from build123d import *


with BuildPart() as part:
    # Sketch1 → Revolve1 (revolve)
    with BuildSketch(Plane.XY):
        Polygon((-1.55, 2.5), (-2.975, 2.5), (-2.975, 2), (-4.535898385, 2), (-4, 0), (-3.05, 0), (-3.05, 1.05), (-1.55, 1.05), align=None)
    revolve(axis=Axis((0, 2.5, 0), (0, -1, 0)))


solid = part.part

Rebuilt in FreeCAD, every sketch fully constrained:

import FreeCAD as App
import Part
import Sketcher
Q = App.Units.Quantity

doc = App.newDocument("Part")
body = doc.addObject("PartDesign::Body", "Body")

sketch1 = body.newObject("Sketcher::SketchObject", "Sketch")
sketch1.AttachmentSupport = (doc.getObject("XY_Plane"), [""])
sketch1.MapMode = "FlatFace"
sketch1.addGeometry([
    Part.LineSegment(App.Vector(-1.55, 2.5, 0), App.Vector(-2.975, 2.5, 0)),
    Part.LineSegment(App.Vector(-2.975, 2.5, 0), App.Vector(-2.975, 2, 0)),
    Part.LineSegment(App.Vector(-2.975, 2, 0), App.Vector(-4.535898, 2, 0)),
    Part.LineSegment(App.Vector(-4.535898, 2, 0), App.Vector(-4, 0, 0)),
    Part.LineSegment(App.Vector(-4, 0, 0), App.Vector(-3.05, 0, 0)),
    Part.LineSegment(App.Vector(-3.05, 0, 0), App.Vector(-3.05, 1.05, 0)),
    Part.LineSegment(App.Vector(-3.05, 1.05, 0), App.Vector(-1.55, 1.05, 0)),
    Part.LineSegment(App.Vector(-1.55, 1.05, 0), App.Vector(-1.55, 2.5, 0)),
], False)
sketch1.addConstraint([
    Sketcher.Constraint("Coincident", 0, 2, 1, 1),
    Sketcher.Constraint("Coincident", 1, 2, 2, 1),
    Sketcher.Constraint("Coincident", 2, 2, 3, 1),
    Sketcher.Constraint("Coincident", 3, 2, 4, 1),
    Sketcher.Constraint("Coincident", 4, 2, 5, 1),
    Sketcher.Constraint("Coincident", 5, 2, 6, 1),
    Sketcher.Constraint("Coincident", 6, 2, 7, 1),
    Sketcher.Constraint("Coincident", 7, 2, 0, 1),
    Sketcher.Constraint("Horizontal", 0),
    Sketcher.Constraint("Vertical", 1),
    Sketcher.Constraint("Horizontal", 2),
    Sketcher.Constraint("Horizontal", 4),
    Sketcher.Constraint("Vertical", 5),
    Sketcher.Constraint("Horizontal", 6),
    Sketcher.Constraint("Vertical", 7),
    Sketcher.Constraint("PointOnObject", 3, 2, -1),
    Sketcher.Constraint("Angle", 3, Q("-75 deg")),
    Sketcher.Constraint("DistanceX", 6, 1, 6, 2, 1.5),
    Sketcher.Constraint("DistanceY", 1, 2, 1, 1, 0.5),
    Sketcher.Constraint("DistanceY", -1, 1, 1, 2, 2.0),
    Sketcher.Constraint("DistanceX", 3, 2, -1, 1, 4.0),
    Sketcher.Constraint("DistanceX", 4, 1, 4, 2, 0.95),
    Sketcher.Constraint("DistanceY", 5, 1, 5, 2, 1.05),
    Sketcher.Constraint("DistanceX", 0, 2, 0, 1, 1.425),
])
revolution = body.newObject("PartDesign::Revolution", "Revolution")
revolution.Profile = sketch1
revolution.ReferenceAxis = (sketch1, ["V_Axis"])
revolution.Angle = 360

doc.recompute()
